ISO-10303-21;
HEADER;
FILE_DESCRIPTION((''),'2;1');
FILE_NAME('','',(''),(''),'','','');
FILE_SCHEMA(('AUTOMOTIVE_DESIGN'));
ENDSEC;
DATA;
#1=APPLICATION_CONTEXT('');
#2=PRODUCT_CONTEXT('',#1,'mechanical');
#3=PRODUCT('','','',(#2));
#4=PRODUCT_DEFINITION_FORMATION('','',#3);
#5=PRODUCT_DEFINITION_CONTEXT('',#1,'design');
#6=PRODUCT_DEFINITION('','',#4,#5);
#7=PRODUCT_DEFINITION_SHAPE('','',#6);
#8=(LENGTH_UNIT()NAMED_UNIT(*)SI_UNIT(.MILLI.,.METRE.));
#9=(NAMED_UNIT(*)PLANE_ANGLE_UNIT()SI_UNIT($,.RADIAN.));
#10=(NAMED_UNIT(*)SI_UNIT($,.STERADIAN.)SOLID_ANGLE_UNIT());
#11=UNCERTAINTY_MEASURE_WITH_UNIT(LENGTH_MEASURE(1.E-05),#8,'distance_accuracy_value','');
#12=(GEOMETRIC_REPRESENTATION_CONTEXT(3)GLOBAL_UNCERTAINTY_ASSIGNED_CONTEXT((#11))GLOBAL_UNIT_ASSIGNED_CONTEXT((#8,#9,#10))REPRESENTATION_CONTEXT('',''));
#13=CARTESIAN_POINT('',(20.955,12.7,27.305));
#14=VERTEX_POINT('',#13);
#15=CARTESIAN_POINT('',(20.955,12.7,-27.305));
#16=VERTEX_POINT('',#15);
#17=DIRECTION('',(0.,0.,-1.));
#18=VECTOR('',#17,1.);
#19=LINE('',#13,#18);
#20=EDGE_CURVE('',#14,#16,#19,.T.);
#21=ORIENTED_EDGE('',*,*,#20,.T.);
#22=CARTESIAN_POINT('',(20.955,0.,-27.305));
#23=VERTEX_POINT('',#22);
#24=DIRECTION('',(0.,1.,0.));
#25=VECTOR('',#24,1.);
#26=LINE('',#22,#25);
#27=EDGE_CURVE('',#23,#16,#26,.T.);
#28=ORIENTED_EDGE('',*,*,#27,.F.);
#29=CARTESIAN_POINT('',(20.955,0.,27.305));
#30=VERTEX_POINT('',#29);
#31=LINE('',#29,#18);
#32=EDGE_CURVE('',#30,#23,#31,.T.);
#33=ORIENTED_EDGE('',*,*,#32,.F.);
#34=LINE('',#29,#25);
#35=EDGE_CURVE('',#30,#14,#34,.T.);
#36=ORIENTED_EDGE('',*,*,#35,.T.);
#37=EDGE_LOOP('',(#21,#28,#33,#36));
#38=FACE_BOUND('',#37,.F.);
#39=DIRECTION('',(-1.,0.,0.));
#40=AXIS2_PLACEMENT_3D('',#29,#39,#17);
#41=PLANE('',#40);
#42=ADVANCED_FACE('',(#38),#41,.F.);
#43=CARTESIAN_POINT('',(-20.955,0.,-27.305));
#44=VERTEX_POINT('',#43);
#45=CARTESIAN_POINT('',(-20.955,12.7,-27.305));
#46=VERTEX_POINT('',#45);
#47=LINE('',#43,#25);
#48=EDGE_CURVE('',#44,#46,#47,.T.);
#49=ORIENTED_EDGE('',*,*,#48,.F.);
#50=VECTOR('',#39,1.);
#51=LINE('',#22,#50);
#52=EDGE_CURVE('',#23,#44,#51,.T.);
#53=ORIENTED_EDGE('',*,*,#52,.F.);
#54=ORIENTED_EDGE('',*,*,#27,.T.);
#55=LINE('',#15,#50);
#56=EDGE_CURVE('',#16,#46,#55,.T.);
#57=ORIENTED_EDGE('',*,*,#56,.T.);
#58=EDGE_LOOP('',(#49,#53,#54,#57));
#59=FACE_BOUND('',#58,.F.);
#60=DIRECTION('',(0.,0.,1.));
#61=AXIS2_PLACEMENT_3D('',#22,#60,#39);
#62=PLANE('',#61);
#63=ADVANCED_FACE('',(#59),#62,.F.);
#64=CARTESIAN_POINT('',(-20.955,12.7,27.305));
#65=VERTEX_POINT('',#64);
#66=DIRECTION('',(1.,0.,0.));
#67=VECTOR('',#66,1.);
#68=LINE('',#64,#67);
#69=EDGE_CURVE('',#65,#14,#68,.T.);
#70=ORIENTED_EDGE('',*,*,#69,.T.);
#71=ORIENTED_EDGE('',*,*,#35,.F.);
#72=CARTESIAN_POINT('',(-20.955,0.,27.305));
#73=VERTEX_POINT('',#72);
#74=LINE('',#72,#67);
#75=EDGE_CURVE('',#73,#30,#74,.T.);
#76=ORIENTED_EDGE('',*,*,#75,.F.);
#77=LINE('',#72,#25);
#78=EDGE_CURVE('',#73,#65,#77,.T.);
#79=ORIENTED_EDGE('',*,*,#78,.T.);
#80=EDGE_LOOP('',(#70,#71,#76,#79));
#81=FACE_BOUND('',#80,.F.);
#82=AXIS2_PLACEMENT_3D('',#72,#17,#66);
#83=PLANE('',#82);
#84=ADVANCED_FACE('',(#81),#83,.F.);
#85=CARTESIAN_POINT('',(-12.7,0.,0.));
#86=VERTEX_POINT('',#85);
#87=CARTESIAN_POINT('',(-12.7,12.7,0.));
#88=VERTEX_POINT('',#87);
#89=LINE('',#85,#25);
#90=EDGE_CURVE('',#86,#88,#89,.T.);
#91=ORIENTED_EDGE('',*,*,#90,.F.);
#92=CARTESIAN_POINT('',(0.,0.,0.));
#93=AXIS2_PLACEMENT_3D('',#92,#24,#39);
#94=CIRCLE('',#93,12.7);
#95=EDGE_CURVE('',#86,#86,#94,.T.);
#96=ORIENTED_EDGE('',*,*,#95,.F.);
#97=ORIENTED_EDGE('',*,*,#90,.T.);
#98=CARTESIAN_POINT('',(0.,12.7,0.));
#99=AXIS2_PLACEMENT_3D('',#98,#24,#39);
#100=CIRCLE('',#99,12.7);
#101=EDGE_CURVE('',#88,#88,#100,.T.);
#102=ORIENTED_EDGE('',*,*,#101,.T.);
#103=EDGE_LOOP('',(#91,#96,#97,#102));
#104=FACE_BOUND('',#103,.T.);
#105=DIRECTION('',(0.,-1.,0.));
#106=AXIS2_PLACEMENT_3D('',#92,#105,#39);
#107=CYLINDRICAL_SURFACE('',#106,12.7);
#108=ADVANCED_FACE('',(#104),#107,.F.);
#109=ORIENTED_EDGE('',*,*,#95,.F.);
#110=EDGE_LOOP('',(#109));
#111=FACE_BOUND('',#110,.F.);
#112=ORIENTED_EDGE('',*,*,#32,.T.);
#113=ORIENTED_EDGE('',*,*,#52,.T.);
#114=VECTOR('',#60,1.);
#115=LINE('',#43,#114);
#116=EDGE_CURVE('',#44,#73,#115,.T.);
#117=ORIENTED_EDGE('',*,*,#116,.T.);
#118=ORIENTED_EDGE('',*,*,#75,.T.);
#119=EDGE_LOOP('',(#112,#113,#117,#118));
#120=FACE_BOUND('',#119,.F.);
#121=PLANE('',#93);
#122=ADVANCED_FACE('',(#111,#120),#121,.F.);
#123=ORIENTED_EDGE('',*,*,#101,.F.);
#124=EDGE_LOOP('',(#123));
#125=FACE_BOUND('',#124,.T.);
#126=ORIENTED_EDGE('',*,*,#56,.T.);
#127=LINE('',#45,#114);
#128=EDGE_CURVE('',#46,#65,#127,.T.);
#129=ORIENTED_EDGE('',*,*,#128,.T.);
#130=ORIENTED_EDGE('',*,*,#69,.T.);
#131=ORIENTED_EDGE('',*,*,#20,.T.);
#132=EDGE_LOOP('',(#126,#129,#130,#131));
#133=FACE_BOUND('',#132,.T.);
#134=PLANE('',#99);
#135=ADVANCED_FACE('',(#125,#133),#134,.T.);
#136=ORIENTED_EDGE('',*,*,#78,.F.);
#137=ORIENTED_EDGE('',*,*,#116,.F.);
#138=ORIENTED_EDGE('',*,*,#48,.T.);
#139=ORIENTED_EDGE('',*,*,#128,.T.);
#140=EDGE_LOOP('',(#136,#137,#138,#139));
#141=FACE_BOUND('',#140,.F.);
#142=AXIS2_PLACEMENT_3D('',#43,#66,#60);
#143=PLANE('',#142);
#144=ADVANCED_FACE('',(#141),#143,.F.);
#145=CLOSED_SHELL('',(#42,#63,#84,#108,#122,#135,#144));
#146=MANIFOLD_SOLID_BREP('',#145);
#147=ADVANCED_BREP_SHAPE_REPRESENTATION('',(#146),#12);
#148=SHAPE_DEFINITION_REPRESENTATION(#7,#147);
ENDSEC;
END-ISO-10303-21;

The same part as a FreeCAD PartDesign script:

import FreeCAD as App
import Part
import Sketcher

V = App.Vector
Q = App.Units.Quantity

doc = App.newDocument("Part")
params = doc.addObject("Spreadsheet::Sheet", "Params")
for row, (alias, value) in enumerate([
    ("sketch1_diameter", "1 in"),
    ("sketch1_width", "1.65 in"),
    ("sketch1_height", "2.15 in"),
    ("pad1_length", "0.5 in"),
], start=1):
    params.set(f"A{row}", alias)
    params.set(f"B{row}", "=" + value)
    params.setAlias(f"B{row}", alias)

body = doc.addObject("PartDesign::Body", "Body")

# Sketch on XZ plane
sketch1 = body.newObject("Sketcher::SketchObject", "Sketch")
sketch1.AttachmentSupport = (doc.getObject("XZ_Plane"), [""])
sketch1.MapMode = "FlatFace"
sketch1.addGeometry([
    Part.LineSegment(V(21, 27, 0), V(21, -27, 0)),  # 0
    Part.LineSegment(V(21, -27, 0), V(-21, -27, 0)),  # 1
    Part.LineSegment(V(-21, -27, 0), V(-21, 27, 0)),  # 2
    Part.LineSegment(V(-21, 27, 0), V(21, 27, 0)),  # 3
    Part.Circle(V(0, 0, 0), V(0, 0, 1), 13),  # 4
], False)
sketch1.addConstraint([
    Sketcher.Constraint("Coincident", 0, 2, 1, 1),
    Sketcher.Constraint("Coincident", 1, 2, 2, 1),
    Sketcher.Constraint("Coincident", 2, 2, 3, 1),
    Sketcher.Constraint("Coincident", 3, 2, 0, 1),
    Sketcher.Constraint("Vertical", 0),
    Sketcher.Constraint("Horizontal", 1),
    Sketcher.Constraint("Vertical", 2),
    Sketcher.Constraint("Horizontal", 3),
    Sketcher.Constraint("Coincident", 4, 3, -1, 1),
    Sketcher.Constraint("Symmetric", 0, 2, 2, 2, -1, 1),
    Sketcher.Constraint("Diameter", 4, Q("1 in")),
    Sketcher.Constraint("DistanceX", 1, 2, 1, 1, Q("1.65 in")),
    Sketcher.Constraint("DistanceY", 0, 2, 0, 1, Q("2.15 in")),
])
sketch1.setExpression("Constraints[10]", "Params.sketch1_diameter")
sketch1.setExpression("Constraints[11]", "Params.sketch1_width")
sketch1.setExpression("Constraints[12]", "Params.sketch1_height")
pad1 = body.newObject("PartDesign::Pad", "Pad")
pad1.Profile = sketch1
pad1.setExpression("Length", "Params.pad1_length")
pad1.Reversed = True

doc.recompute()
